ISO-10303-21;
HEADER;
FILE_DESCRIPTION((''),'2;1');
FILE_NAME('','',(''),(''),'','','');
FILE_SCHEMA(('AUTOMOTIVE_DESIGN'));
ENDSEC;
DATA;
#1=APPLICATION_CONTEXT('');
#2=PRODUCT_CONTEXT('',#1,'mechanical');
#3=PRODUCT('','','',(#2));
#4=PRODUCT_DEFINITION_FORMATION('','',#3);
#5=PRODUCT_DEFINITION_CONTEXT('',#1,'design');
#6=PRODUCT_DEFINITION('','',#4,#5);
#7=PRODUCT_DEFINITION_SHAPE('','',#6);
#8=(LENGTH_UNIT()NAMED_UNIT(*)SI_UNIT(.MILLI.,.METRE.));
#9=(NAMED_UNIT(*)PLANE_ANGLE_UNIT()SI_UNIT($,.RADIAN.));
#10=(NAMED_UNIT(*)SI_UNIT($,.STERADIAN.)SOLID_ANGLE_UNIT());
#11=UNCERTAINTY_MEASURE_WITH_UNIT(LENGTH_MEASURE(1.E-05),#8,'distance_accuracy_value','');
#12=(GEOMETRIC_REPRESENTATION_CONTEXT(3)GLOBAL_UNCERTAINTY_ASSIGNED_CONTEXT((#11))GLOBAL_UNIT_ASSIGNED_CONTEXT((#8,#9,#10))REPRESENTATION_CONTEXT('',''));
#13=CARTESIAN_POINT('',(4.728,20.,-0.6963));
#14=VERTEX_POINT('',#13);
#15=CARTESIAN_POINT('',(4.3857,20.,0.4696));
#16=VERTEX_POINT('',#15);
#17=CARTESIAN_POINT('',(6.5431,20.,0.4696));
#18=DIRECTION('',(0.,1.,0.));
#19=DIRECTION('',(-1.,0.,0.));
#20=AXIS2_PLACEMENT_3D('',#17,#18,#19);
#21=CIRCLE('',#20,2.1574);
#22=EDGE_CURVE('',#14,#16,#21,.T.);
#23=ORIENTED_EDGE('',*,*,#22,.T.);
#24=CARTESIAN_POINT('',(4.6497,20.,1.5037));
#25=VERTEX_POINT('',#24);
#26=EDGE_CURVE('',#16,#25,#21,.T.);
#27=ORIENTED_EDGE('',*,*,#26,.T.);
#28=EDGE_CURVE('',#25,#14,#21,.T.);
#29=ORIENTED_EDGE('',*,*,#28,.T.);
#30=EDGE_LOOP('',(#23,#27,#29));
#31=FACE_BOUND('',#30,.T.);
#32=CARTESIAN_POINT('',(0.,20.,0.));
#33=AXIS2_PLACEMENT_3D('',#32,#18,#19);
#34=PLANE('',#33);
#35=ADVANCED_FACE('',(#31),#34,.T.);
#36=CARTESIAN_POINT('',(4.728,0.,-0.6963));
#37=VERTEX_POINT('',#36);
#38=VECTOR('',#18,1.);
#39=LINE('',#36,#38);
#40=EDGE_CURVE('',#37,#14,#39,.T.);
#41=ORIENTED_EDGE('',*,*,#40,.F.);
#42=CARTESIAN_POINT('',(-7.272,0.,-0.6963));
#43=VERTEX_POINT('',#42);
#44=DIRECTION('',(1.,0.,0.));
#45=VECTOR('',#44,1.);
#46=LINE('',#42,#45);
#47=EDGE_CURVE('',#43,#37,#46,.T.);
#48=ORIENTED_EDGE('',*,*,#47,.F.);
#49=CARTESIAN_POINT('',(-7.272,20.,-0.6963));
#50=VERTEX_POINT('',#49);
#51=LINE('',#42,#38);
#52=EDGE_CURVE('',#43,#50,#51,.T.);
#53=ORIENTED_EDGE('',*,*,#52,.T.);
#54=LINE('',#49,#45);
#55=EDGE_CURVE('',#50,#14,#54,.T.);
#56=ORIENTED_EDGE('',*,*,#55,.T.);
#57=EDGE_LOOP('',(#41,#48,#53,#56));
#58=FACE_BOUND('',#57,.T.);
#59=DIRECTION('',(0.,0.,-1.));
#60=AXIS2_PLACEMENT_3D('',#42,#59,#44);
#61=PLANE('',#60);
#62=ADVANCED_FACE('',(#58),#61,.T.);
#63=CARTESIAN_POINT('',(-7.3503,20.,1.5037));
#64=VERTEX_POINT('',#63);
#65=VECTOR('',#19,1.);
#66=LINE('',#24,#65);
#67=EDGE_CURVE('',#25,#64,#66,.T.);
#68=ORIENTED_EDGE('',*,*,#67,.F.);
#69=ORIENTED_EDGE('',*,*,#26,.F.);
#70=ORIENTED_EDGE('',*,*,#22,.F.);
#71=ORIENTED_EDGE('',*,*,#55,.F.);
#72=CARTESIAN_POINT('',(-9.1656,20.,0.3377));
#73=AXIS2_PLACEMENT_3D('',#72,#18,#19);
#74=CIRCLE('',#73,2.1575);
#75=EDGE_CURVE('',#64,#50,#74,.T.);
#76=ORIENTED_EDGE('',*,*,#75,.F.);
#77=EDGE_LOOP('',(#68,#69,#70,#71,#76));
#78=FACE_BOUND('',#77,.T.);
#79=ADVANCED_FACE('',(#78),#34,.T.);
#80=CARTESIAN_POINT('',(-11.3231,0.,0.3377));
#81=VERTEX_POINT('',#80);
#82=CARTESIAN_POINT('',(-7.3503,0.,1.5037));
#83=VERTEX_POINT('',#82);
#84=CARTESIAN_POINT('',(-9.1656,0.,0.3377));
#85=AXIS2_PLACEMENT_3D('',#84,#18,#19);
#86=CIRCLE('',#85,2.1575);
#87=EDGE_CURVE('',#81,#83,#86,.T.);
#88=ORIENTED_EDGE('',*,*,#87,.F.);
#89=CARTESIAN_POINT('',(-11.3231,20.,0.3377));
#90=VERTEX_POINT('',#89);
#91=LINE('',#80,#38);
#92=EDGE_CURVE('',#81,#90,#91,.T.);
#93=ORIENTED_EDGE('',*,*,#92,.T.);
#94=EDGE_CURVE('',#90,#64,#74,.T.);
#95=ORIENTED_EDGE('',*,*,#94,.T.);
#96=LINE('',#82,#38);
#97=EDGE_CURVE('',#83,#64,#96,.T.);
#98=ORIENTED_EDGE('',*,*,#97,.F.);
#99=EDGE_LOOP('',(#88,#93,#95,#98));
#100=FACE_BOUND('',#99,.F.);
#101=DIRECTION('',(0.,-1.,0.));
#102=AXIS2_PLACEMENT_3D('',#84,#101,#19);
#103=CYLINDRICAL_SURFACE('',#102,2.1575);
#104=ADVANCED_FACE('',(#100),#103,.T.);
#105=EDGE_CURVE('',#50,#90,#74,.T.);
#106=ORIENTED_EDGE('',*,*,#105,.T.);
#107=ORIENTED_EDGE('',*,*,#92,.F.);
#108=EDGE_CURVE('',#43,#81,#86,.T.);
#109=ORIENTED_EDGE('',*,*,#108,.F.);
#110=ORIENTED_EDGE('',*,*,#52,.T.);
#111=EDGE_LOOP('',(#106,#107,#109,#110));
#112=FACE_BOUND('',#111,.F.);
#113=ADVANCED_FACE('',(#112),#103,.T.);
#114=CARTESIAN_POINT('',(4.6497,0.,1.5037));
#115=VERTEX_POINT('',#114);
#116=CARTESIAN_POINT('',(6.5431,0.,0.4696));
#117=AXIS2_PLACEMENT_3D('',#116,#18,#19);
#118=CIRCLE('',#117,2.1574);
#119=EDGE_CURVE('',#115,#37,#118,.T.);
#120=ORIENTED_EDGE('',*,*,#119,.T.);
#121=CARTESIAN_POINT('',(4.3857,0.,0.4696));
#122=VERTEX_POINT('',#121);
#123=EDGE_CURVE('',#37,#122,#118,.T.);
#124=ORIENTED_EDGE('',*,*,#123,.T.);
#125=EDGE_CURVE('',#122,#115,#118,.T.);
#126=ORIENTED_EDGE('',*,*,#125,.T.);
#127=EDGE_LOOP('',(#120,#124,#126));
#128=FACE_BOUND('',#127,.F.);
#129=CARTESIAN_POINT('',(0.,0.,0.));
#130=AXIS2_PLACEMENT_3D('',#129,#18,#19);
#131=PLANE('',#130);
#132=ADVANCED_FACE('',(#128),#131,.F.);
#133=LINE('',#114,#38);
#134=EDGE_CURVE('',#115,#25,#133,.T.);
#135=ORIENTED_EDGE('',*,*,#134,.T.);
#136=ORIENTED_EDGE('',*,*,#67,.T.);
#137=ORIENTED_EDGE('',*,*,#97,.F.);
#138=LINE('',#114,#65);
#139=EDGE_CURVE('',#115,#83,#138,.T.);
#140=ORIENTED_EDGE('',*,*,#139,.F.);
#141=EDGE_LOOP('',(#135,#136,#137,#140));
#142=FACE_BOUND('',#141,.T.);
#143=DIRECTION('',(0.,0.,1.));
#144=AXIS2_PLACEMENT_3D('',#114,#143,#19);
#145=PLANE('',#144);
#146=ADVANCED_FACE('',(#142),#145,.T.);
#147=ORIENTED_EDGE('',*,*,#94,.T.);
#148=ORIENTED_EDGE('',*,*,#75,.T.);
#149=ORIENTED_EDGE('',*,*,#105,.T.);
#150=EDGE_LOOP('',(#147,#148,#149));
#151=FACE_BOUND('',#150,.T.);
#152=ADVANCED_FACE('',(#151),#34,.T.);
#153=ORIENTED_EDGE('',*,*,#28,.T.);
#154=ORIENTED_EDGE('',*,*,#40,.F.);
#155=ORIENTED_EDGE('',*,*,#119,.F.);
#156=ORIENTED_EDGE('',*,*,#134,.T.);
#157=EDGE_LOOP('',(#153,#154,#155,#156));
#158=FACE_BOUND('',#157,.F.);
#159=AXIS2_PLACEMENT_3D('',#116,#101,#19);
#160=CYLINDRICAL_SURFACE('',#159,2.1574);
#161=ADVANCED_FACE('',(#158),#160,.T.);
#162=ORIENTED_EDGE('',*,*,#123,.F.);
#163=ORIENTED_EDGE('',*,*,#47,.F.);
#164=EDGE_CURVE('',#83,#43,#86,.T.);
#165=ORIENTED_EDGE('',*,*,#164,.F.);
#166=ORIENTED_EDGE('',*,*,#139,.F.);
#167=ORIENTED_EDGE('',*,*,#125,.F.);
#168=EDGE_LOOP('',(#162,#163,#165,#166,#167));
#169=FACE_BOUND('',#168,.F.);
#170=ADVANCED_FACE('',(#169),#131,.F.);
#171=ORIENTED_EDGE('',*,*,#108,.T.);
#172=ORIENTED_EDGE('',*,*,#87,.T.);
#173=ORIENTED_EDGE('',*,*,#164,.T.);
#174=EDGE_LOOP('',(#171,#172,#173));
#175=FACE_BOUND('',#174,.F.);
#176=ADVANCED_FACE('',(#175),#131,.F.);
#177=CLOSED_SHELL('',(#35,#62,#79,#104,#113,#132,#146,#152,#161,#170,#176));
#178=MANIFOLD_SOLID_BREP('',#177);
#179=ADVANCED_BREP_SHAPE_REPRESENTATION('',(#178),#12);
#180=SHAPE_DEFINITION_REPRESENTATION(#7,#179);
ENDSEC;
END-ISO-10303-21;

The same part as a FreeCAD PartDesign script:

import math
import FreeCAD as App
import Part
import Sketcher

V = App.Vector
Q = App.Units.Quantity

doc = App.newDocument("Part")
body = doc.addObject("PartDesign::Body", "Body")

# Sketch on XZ plane
sketch1 = doc.addObject("Sketcher::SketchObject", "Sketch")
body.addObject(sketch1)
sketch1.AttachmentSupport = (doc.XZ_Plane, [""])
sketch1.MapMode = "FlatFace"
sketch1.addGeometry(Part.ArcOfCircle(Part.Circle(V(6.5, 0.5, 0), V(0, 0, 1), 2.2), math.radians(-147), math.radians(151)), False)
sketch1.addGeometry(Part.LineSegment(V(4.7, -0.7, 0), V(-7.3, -0.7, 0)), False)
sketch1.addGeometry(Part.ArcOfCircle(Part.Circle(V(-9.2, 0.3, 0), V(0, 0, 1), 2.2), math.radians(33), math.radians(331)), False)
sketch1.addGeometry(Part.LineSegment(V(-7.4, 1.5, 0), V(4.6, 1.5, 0)), False)
sketch1.addConstraint(Sketcher.Constraint("Coincident", 0, 1, 1, 1))
sketch1.addConstraint(Sketcher.Constraint("Coincident", 1, 2, 2, 2))
sketch1.addConstraint(Sketcher.Constraint("Coincident", 2, 1, 3, 1))
sketch1.addConstraint(Sketcher.Constraint("Coincident", 3, 2, 0, 2))
sketch1.addConstraint(Sketcher.Constraint("Horizontal", 1))
sketch1.addConstraint(Sketcher.Constraint("Horizontal", 3))
sketch1.addConstraint(Sketcher.Constraint("Equal", 0, 2))
sketch1.addConstraint(Sketcher.Constraint("Equal", 1, 3))
sketch1.addConstraint(Sketcher.Constraint("DistanceX", 1, 2, 1, 1, Q("12 mm")))
sketch1.addConstraint(Sketcher.Constraint("Radius", 0, Q("2.1574 mm")))
sketch1.addConstraint(Sketcher.Constraint("DistanceY", 1, 2, 2, 1, Q("2.2 mm")))
sketch1.addConstraint(Sketcher.Constraint("DistanceX", -1, 1, 0, 3, Q("6.543 mm")))
sketch1.addConstraint(Sketcher.Constraint("DistanceX", -1, 1, 0, 1, Q("4.728 mm")))
sketch1.addConstraint(Sketcher.Constraint("DistanceY", -1, 1, 0, 3, Q("0.4696 mm")))
pad1 = doc.addObject("PartDesign::Pad", "Pad")
body.addObject(pad1)
pad1.Profile = sketch1
pad1.Length = 20
pad1.Reversed = True

doc.recompute()
